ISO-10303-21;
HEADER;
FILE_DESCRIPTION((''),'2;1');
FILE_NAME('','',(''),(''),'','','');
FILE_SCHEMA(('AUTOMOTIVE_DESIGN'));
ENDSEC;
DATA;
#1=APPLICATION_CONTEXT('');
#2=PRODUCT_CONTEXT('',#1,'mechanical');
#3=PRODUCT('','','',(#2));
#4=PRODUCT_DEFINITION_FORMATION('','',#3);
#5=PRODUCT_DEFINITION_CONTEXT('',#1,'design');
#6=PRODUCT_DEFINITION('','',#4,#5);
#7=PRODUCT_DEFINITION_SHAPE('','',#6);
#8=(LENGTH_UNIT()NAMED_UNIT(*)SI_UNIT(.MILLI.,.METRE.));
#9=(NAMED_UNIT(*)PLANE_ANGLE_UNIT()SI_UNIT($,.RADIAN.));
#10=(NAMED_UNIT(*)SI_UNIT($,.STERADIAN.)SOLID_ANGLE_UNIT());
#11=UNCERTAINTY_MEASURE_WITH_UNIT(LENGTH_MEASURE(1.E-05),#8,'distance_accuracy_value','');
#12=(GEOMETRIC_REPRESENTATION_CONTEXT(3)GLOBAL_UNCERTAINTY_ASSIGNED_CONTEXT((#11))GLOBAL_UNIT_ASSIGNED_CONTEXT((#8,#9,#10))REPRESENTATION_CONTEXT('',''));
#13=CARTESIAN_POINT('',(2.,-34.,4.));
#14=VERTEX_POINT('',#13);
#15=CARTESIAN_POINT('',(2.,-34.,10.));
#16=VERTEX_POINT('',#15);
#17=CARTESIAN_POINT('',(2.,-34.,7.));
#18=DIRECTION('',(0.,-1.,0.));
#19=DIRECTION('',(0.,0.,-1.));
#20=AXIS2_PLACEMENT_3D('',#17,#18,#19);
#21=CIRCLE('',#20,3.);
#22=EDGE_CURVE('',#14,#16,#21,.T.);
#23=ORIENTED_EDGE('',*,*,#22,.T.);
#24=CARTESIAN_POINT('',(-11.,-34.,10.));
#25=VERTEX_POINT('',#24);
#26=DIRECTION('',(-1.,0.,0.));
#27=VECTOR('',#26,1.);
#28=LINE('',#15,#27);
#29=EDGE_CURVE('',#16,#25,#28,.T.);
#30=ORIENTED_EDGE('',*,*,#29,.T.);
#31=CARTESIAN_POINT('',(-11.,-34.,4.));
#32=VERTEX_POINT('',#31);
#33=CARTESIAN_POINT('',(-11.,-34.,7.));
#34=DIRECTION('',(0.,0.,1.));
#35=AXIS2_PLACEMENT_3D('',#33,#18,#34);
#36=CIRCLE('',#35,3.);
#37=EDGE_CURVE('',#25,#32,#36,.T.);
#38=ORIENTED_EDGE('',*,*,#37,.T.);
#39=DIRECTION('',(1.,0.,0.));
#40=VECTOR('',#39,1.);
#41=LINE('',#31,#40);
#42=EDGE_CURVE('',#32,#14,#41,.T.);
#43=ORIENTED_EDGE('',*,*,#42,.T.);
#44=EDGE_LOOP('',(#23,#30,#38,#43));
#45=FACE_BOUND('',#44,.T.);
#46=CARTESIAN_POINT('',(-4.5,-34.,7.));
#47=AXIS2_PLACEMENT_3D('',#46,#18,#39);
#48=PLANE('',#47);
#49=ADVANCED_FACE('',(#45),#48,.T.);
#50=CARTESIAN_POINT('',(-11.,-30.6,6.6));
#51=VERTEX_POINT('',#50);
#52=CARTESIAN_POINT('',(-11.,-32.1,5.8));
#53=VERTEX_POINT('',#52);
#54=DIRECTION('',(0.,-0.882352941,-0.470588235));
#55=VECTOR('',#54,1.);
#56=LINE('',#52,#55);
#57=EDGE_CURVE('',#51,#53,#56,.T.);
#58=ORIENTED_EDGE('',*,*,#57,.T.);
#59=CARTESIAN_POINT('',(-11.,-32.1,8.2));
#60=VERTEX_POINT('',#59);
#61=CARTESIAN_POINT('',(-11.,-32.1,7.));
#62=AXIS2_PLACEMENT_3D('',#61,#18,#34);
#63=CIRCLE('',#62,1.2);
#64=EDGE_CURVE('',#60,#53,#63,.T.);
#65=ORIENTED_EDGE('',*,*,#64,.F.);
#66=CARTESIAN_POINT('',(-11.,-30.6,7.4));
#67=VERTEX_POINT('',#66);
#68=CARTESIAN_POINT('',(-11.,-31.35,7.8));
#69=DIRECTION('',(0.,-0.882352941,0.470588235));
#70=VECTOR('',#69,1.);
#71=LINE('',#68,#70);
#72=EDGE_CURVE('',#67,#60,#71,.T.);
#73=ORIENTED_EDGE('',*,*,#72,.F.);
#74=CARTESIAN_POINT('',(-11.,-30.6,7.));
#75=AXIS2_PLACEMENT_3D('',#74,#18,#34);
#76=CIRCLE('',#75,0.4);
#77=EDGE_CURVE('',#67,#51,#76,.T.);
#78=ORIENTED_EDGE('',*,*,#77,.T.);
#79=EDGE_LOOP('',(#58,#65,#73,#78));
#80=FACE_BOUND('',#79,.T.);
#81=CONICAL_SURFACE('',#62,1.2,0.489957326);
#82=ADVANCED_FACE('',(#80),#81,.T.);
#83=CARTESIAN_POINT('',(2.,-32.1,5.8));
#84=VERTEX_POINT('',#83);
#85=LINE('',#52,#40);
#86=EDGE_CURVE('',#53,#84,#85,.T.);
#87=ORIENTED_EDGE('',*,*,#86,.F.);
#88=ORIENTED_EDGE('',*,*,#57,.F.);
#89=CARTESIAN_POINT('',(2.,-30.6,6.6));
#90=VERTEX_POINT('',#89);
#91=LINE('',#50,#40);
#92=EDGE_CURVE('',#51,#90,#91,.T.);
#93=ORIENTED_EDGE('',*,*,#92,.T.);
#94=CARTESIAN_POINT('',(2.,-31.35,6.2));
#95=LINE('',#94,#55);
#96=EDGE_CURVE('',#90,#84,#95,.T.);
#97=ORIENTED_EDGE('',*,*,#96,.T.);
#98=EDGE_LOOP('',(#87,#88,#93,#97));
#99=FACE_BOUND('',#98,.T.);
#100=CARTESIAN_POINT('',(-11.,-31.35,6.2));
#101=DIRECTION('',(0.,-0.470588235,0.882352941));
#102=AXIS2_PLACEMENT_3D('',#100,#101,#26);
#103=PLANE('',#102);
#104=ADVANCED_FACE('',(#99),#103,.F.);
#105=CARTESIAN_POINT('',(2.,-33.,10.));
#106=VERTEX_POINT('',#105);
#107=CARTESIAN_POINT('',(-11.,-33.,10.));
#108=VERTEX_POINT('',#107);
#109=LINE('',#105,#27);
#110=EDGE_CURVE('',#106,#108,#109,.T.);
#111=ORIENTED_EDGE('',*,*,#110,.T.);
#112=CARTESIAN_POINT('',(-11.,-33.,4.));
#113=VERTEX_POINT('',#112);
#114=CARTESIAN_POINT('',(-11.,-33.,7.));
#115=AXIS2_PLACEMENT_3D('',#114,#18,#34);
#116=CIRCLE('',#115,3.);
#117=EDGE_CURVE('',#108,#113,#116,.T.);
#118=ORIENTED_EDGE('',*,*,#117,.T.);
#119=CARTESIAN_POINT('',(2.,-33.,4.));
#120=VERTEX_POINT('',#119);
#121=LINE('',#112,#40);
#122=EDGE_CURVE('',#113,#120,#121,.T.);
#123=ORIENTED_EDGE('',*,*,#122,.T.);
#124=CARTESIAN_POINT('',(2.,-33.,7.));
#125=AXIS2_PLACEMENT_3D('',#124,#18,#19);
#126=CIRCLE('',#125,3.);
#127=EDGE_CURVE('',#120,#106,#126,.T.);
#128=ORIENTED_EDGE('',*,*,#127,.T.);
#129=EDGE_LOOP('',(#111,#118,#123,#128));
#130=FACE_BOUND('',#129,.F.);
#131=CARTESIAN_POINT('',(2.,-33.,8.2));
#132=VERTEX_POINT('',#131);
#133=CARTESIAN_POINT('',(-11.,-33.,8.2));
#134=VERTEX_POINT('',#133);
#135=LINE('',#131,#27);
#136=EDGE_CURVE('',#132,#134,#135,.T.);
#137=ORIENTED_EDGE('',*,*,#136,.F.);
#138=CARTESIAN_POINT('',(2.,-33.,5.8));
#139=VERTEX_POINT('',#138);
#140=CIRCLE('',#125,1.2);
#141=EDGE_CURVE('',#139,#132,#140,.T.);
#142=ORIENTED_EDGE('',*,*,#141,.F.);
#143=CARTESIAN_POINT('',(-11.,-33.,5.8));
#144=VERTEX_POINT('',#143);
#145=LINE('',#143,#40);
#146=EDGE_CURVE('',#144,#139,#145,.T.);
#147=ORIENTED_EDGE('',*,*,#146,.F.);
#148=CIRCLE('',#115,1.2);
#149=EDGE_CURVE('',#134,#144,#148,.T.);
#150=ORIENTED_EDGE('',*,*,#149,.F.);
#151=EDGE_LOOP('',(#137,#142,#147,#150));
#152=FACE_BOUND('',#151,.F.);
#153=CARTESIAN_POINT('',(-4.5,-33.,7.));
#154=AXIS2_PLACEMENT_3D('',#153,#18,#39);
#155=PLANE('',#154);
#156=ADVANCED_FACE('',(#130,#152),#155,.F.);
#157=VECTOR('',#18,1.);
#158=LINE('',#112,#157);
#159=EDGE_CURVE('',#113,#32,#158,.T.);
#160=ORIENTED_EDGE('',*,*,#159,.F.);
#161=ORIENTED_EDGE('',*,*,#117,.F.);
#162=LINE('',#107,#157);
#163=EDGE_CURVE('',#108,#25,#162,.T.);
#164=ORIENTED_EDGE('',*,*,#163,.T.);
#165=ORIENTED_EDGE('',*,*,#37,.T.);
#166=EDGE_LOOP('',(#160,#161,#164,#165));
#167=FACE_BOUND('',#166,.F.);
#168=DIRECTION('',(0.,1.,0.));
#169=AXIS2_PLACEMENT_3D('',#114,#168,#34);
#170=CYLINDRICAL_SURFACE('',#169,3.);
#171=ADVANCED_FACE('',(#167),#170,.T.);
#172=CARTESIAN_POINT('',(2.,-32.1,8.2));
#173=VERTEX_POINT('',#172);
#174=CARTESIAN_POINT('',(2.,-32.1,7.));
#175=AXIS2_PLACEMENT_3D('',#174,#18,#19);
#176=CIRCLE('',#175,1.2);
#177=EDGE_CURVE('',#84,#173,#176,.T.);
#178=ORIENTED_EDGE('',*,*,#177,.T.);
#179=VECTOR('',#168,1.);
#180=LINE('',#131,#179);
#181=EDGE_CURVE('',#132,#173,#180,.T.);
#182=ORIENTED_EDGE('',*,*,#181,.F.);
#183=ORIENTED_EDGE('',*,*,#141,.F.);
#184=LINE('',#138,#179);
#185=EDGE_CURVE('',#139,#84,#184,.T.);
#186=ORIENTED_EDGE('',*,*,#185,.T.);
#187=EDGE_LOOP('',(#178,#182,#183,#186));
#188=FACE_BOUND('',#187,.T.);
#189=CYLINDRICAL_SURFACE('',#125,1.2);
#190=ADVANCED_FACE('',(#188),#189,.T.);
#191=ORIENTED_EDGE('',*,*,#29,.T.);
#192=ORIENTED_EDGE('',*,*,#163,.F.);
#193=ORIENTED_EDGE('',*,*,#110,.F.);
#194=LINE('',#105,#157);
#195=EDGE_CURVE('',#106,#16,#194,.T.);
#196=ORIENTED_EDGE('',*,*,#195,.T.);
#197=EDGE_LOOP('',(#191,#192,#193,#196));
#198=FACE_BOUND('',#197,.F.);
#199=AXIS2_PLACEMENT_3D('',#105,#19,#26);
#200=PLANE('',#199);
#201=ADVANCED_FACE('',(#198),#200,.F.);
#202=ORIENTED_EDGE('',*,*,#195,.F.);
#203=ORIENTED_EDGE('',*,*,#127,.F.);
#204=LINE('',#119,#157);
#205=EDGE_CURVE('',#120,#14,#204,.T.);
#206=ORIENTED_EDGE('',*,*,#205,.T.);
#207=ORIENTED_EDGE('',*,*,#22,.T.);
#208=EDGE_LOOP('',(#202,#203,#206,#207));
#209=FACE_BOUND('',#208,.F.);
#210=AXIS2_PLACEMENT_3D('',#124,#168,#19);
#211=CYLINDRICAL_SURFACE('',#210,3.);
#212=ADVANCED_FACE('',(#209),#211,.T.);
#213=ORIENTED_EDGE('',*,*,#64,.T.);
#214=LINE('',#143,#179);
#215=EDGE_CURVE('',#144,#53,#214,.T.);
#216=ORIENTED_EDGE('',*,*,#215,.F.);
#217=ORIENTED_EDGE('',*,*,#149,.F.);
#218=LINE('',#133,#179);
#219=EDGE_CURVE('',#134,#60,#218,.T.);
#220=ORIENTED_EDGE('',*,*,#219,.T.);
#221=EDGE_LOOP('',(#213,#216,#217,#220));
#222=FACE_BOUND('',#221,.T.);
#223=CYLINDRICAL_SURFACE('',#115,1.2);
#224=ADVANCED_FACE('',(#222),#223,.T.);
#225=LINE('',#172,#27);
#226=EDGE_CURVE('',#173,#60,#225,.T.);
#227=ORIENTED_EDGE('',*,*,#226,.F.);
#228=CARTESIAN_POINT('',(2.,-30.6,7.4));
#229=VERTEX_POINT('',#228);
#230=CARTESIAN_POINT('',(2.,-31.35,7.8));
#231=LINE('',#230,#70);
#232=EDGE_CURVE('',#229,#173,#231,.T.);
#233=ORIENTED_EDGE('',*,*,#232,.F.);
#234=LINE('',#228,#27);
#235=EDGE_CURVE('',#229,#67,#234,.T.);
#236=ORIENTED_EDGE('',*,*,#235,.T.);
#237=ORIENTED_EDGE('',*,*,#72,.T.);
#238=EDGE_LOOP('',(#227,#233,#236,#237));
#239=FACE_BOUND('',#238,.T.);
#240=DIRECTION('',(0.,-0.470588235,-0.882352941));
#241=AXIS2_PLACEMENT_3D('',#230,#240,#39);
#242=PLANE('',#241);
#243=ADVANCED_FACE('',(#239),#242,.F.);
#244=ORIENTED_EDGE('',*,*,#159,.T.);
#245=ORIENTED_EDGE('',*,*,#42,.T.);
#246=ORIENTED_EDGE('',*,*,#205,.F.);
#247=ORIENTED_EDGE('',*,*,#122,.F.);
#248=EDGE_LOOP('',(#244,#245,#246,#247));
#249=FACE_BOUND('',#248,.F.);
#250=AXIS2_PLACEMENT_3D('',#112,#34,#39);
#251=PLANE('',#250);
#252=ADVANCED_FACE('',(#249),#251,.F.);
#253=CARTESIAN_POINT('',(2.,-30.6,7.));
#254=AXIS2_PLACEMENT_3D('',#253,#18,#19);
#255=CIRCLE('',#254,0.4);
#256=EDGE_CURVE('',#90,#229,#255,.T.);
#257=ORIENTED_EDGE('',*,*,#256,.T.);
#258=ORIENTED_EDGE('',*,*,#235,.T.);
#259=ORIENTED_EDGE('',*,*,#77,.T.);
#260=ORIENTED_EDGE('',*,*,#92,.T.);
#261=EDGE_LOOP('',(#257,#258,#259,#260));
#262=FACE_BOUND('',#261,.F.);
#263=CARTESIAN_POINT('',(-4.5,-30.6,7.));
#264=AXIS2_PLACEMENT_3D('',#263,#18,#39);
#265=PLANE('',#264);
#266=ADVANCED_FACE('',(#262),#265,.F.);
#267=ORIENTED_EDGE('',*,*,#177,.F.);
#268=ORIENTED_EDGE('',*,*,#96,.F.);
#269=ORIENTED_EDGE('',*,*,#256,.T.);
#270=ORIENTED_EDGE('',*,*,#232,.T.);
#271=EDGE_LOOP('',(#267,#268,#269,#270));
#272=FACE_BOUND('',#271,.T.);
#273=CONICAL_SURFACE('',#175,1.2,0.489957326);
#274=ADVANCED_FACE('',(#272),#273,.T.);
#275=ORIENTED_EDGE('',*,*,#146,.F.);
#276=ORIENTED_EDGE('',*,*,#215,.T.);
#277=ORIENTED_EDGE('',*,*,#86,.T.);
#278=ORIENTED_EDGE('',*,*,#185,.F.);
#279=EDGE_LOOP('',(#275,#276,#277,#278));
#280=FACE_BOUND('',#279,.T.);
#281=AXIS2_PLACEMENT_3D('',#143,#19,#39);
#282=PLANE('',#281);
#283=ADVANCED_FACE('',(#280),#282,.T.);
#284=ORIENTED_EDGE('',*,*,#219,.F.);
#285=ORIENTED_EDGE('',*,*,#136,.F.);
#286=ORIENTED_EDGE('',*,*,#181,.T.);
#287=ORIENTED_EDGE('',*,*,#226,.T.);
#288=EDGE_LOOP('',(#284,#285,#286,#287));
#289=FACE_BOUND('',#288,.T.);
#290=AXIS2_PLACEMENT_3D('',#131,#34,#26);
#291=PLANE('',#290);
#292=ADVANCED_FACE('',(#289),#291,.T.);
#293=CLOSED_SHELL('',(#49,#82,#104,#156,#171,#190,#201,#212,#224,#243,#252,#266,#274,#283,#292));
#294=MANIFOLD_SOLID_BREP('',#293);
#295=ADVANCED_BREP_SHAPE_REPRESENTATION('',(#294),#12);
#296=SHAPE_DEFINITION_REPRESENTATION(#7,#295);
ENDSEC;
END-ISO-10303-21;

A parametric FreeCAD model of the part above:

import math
import FreeCAD as App
import Part
import Sketcher

V = App.Vector


def edges_at(feature, points):
    """Names of the edges that pass closest to the given points."""
    edges = feature.Shape.Edges
    near = lambda p: min(range(len(edges)), key=lambda i: edges[i].distToShape(Part.Vertex(*p))[0])
    return sorted({f"Edge{near(p) + 1}" for p in points})

doc = App.newDocument("Part")
params = doc.addObject("Spreadsheet::Sheet", "Params")
for row, (alias, value) in enumerate([
    ("sketch1_radius", "3 mm"),
    ("sketch1_width", "13 mm"),
    ("pad1_length", "1 mm"),
    ("sketch2_radius", "1.2 mm"),
    ("sketch2_width", "13 mm"),
    ("pad2_length", "2.4 mm"),
    ("chamfer_size", "0.8 mm"),
    ("chamfer_size2", "1.5 mm"),
], start=1):
    params.set(f"A{row}", alias)
    params.set(f"B{row}", "=" + value)
    params.setAlias(f"B{row}", alias)

body = doc.addObject("PartDesign::Body", "Body")

# Sketch on XZ plane
sketch1 = doc.addObject("Sketcher::SketchObject", "Sketch")
body.addObject(sketch1)
sketch1.AttachmentSupport = (doc.XZ_Plane, [""])
sketch1.MapMode = "FlatFace"
sketch1.AttachmentOffset = App.Placement(V(0, 0, 33), App.Rotation())
sketch1.addGeometry([
    Part.ArcOfCircle(Part.Circle(V(-11, 7, 0), V(0, 0, 1), 3), math.radians(90), math.radians(270)),
    Part.LineSegment(V(-11, 4, 0), V(2, 4, 0)),
    Part.ArcOfCircle(Part.Circle(V(2, 7, 0), V(0, 0, 1), 3), math.radians(-90), math.radians(90)),
    Part.LineSegment(V(2, 10, 0), V(-11, 10, 0)),
], False)
sketch1.addConstraint([
    Sketcher.Constraint("Tangent", 0, 2, 1, 1),
    Sketcher.Constraint("Tangent", 1, 2, 2, 1),
    Sketcher.Constraint("Tangent", 2, 2, 3, 1),
    Sketcher.Constraint("Tangent", 3, 2, 0, 1),
    Sketcher.Constraint("Horizontal", 1),
    Sketcher.Constraint("Horizontal", 3),
    Sketcher.Constraint("Radius", 0, 3.0),
    Sketcher.Constraint("DistanceX", 1, 1, 1, 2, 13.0),
    Sketcher.Constraint("DistanceX", 0, 3, -1, 1, 11.0),
    Sketcher.Constraint("DistanceY", -1, 1, 0, 3, 7.0),
])
sketch1.setExpression("Constraints[6]", "Params.sketch1_radius")
sketch1.setExpression("Constraints[7]", "Params.sketch1_width")
pad1 = doc.addObject("PartDesign::Pad", "Pad")
body.addObject(pad1)
pad1.Profile = sketch1
pad1.setExpression("Length", "Params.pad1_length")
body2 = doc.addObject("PartDesign::Body", "Body001")

# Sketch on XZ plane
sketch2 = doc.addObject("Sketcher::SketchObject", "Sketch001")
body2.addObject(sketch2)
sketch2.AttachmentSupport = (doc.getObject("XZ_Plane001"), [""])
sketch2.MapMode = "FlatFace"
sketch2.AttachmentOffset = App.Placement(V(0, 0, 33), App.Rotation())
sketch2.addGeometry([
    Part.ArcOfCircle(Part.Circle(V(-11, 7, 0), V(0, 0, 1), 1.2), math.radians(90), math.radians(270)),
    Part.LineSegment(V(-11, 5.8, 0), V(2, 5.8, 0)),
    Part.ArcOfCircle(Part.Circle(V(2, 7, 0), V(0, 0, 1), 1.2), math.radians(-90), math.radians(90)),
    Part.LineSegment(V(2, 8.2, 0), V(-11, 8.2, 0)),
], False)
sketch2.addConstraint([
    Sketcher.Constraint("Tangent", 0, 2, 1, 1),
    Sketcher.Constraint("Tangent", 1, 2, 2, 1),
    Sketcher.Constraint("Tangent", 2, 2, 3, 1),
    Sketcher.Constraint("Tangent", 3, 2, 0, 1),
    Sketcher.Constraint("Horizontal", 1),
    Sketcher.Constraint("Horizontal", 3),
    Sketcher.Constraint("Radius", 0, 1.2),
    Sketcher.Constraint("DistanceX", 1, 1, 1, 2, 13.0),
    Sketcher.Constraint("DistanceX", 0, 3, -1, 1, 11.0),
    Sketcher.Constraint("DistanceY", -1, 1, 0, 3, 7.0),
])
sketch2.setExpression("Constraints[6]", "Params.sketch2_radius")
sketch2.setExpression("Constraints[7]", "Params.sketch2_width")
pad2 = doc.addObject("PartDesign::Pad", "Pad001")
body2.addObject(pad2)
pad2.Profile = sketch2
pad2.setExpression("Length", "Params.pad2_length")
pad2.Reversed = True
doc.recompute()

boolean = doc.addObject("PartDesign::Boolean", "Boolean")
body2.addObject(boolean)
boolean.Type = "Fuse"
boolean.addObjects([body])
doc.recompute()

chamfer = doc.addObject("PartDesign::Chamfer", "Chamfer")
body2.addObject(chamfer)
chamfer.Base = (boolean, edges_at(boolean, [(-4.5, -30.6, 8.2)]))
chamfer.ChamferType = "Two distances"
chamfer.setExpression("Size", "Params.chamfer_size")
chamfer.setExpression("Size2", "Params.chamfer_size2")
chamfer.FlipDirection = True

doc.recompute()
